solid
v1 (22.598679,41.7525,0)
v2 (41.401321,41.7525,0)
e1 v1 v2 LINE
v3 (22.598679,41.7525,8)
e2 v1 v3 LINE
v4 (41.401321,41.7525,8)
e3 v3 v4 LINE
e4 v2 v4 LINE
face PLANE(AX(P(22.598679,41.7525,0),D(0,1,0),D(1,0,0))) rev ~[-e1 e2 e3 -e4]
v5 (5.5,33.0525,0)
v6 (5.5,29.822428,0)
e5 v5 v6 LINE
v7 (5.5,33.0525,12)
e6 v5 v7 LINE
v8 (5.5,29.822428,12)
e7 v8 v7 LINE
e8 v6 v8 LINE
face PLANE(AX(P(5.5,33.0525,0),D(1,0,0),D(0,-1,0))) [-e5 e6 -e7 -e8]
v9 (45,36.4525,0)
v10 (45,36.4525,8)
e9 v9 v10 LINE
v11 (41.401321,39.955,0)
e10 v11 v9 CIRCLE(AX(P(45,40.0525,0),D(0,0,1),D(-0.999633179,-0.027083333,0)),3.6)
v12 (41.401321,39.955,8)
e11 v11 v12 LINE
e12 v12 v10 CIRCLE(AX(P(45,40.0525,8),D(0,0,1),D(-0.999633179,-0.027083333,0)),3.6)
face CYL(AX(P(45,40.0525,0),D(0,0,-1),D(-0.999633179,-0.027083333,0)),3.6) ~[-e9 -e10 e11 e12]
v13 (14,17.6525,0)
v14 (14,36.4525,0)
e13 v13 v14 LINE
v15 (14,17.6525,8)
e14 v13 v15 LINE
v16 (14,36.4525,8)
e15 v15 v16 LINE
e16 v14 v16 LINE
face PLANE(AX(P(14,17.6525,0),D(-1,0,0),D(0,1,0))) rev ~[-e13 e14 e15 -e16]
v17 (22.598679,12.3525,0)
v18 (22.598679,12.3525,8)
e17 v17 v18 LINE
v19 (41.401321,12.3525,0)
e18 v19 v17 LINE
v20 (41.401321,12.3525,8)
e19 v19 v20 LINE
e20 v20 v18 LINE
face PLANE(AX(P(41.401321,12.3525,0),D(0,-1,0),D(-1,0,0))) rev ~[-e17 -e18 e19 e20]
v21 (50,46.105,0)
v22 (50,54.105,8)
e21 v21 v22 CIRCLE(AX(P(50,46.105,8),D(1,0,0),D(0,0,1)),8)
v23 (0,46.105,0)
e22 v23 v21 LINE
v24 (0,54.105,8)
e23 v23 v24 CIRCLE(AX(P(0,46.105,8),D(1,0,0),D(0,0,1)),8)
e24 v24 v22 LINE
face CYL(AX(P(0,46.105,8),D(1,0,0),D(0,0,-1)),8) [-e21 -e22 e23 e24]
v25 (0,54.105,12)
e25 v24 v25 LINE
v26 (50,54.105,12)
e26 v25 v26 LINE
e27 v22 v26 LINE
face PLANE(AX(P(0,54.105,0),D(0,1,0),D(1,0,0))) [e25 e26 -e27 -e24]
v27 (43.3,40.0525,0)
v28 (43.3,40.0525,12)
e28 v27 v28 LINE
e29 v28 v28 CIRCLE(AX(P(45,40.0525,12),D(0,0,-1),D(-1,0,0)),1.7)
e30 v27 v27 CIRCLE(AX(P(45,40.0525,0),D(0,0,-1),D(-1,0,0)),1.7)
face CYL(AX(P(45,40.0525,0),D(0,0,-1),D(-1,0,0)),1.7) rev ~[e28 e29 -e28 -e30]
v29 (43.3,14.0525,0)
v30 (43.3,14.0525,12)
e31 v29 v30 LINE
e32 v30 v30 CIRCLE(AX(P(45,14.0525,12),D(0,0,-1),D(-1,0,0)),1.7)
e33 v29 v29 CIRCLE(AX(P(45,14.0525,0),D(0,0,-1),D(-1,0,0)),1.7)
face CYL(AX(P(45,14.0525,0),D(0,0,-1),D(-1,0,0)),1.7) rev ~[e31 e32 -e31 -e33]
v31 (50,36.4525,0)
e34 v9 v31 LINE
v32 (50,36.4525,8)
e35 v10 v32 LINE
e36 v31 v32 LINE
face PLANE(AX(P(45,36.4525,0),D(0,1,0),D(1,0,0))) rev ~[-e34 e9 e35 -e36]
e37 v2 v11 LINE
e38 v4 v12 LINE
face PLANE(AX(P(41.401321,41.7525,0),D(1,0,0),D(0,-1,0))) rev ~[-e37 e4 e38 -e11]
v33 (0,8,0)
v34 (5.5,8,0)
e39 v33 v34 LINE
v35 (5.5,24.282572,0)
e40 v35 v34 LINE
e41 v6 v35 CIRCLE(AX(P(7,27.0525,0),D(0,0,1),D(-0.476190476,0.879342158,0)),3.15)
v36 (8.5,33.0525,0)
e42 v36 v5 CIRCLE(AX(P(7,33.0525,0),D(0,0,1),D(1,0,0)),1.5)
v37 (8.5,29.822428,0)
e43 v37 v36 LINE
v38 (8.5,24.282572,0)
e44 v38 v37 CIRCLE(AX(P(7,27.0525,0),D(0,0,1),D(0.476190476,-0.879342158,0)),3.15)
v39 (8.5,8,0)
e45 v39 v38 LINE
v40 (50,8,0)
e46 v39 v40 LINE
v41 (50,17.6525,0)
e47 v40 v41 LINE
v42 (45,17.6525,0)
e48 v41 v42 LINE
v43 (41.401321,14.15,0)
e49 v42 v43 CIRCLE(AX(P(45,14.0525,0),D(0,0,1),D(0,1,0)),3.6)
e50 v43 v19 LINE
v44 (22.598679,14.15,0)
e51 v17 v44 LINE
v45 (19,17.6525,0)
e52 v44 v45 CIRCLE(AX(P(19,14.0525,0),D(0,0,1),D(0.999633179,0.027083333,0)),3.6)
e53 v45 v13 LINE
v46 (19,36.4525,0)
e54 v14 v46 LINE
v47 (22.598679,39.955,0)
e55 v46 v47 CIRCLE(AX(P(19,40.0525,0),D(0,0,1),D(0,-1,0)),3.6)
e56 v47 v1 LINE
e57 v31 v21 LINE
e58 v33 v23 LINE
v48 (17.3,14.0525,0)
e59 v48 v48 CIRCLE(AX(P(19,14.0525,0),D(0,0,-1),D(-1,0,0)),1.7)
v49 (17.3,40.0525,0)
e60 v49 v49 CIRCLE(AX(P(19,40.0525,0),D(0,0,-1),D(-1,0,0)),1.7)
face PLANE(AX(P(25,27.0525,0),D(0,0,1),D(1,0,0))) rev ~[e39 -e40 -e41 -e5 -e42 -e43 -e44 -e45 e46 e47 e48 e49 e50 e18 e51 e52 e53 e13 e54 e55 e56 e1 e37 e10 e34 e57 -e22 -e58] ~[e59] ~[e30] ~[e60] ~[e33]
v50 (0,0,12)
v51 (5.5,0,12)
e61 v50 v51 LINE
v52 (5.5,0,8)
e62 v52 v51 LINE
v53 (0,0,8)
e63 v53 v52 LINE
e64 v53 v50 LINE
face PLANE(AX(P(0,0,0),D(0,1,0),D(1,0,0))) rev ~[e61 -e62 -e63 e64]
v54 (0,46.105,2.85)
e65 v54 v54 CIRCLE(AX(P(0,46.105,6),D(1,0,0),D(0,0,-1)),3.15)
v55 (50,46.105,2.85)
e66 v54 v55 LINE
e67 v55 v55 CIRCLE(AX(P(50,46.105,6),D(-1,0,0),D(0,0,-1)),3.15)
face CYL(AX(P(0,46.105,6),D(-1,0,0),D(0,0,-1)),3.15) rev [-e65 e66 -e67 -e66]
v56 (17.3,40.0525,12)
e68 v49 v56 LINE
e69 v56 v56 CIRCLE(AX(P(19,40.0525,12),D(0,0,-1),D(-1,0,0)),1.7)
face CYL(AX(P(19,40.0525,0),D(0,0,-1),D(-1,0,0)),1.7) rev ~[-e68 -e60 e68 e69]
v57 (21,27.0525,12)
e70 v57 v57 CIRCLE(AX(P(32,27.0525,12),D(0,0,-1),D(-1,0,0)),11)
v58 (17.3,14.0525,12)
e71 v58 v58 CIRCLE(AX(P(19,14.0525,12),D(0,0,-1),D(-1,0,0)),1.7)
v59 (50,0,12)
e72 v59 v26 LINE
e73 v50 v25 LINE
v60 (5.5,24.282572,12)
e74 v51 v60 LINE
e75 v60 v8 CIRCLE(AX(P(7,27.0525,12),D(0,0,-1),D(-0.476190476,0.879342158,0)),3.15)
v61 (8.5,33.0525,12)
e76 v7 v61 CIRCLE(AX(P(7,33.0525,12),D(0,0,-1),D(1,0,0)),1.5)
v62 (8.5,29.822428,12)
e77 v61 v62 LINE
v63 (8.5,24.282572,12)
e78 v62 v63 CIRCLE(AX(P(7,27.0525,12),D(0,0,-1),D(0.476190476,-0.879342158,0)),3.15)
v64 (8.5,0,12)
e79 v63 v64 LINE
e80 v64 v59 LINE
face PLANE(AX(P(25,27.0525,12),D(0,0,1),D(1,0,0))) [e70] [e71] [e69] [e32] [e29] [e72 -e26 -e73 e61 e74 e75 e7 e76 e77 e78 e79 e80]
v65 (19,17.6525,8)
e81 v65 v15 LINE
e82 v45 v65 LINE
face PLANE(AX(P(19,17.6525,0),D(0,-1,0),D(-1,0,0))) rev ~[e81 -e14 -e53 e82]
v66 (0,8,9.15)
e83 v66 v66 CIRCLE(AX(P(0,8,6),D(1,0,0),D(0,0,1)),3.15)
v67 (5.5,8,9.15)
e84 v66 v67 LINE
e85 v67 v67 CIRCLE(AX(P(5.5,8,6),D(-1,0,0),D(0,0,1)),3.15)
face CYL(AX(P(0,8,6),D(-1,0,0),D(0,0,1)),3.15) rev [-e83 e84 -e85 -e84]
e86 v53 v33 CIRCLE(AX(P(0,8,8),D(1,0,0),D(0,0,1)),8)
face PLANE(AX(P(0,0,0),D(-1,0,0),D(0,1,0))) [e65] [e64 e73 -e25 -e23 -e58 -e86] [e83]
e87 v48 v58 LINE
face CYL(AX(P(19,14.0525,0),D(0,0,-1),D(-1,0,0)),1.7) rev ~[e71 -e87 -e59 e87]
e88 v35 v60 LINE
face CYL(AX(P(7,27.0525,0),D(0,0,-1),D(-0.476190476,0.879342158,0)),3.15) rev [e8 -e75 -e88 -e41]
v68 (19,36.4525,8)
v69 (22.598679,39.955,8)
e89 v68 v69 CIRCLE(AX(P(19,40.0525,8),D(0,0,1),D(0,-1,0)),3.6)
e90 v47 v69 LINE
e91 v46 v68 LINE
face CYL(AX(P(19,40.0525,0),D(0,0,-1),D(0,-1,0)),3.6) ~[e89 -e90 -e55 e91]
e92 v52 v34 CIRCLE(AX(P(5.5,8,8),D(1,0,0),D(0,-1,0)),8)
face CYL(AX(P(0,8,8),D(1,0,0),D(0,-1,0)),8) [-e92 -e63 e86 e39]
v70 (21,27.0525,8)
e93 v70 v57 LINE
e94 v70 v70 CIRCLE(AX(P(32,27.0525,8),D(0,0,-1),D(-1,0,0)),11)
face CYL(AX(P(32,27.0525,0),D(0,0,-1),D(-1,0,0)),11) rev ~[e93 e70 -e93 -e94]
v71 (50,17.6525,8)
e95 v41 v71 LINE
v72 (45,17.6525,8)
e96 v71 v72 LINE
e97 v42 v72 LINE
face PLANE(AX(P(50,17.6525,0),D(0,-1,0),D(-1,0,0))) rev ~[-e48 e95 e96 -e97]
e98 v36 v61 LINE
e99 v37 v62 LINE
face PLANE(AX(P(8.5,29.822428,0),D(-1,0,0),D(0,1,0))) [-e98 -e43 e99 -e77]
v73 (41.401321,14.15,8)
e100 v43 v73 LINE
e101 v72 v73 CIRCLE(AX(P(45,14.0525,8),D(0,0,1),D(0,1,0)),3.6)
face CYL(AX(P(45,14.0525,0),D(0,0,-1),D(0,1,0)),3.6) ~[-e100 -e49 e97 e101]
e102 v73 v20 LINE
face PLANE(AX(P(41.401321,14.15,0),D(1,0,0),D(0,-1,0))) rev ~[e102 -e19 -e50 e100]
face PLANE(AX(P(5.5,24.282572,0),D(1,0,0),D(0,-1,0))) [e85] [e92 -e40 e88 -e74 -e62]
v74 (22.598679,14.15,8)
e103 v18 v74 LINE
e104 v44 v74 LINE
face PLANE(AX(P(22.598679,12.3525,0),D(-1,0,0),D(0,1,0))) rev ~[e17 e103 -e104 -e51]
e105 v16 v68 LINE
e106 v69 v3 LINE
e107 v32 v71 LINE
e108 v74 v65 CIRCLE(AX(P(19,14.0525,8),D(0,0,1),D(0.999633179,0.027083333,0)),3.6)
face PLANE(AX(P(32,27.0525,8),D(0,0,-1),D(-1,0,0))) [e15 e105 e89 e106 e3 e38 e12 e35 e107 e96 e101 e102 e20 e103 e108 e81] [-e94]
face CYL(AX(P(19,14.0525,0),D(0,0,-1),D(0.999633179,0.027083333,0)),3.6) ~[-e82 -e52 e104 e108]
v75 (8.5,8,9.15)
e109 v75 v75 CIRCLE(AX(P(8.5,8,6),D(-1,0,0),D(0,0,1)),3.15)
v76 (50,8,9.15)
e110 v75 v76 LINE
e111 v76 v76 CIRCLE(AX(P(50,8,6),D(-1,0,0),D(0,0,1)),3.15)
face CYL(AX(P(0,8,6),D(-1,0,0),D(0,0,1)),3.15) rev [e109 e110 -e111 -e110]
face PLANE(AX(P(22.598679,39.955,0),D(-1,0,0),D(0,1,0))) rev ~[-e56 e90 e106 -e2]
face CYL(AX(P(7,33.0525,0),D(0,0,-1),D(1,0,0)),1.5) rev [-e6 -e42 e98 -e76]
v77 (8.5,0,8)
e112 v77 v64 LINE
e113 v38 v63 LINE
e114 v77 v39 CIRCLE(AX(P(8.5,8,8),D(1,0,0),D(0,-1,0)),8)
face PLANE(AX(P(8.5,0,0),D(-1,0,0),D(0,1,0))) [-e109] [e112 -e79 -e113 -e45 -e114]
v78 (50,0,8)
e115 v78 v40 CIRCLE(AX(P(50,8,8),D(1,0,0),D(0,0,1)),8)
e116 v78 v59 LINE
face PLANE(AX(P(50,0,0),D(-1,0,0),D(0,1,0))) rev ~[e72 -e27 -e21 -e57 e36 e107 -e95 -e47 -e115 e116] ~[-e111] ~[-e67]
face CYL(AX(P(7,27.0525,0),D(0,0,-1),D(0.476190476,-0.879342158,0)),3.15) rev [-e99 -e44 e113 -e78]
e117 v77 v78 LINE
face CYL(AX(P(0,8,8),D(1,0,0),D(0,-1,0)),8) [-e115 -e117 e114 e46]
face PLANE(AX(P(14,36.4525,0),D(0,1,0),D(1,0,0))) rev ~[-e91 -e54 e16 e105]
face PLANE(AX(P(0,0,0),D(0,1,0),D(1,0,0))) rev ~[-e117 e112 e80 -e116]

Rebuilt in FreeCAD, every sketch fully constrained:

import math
import FreeCAD as App
import Part
import Sketcher

V = App.Vector
Q = App.Units.Quantity


def edges_at(feature, points):
    """Names of the edges that pass closest to the given points."""
    edges = feature.Shape.Edges
    near = lambda p: min(range(len(edges)), key=lambda i: edges[i].distToShape(Part.Vertex(*p))[0])
    return sorted({f"Edge{near(p) + 1}" for p in points})

doc = App.newDocument("Part")
body = doc.addObject("PartDesign::Body", "Body")

# Sketch on XY plane
sketch1 = body.newObject("Sketcher::SketchObject", "Sketch")
sketch1.AttachmentSupport = (doc.getObject("XY_Plane"), [""])
sketch1.MapMode = "FlatFace"
sketch1.addGeometry(Part.LineSegment(V(0, 54.105, 0), V(0, 0, 0)), False)
sketch1.addGeometry(Part.LineSegment(V(0, 0, 0), V(50, 0, 0)), False)
sketch1.addGeometry(Part.LineSegment(V(50, 0, 0), V(50, 54.105, 0)), False)
sketch1.addGeometry(Part.LineSegment(V(50, 54.105, 0), V(0, 54.105, 0)), False)
sketch1.addConstraint(Sketcher.Constraint("Coincident", 0, 2, 1, 1))
sketch1.addConstraint(Sketcher.Constraint("Coincident", 1, 2, 2, 1))
sketch1.addConstraint(Sketcher.Constraint("Coincident", 2, 2, 3, 1))
sketch1.addConstraint(Sketcher.Constraint("Coincident", 3, 2, 0, 1))
sketch1.addConstraint(Sketcher.Constraint("Vertical", 0))
sketch1.addConstraint(Sketcher.Constraint("Horizontal", 1))
sketch1.addConstraint(Sketcher.Constraint("Vertical", 2))
sketch1.addConstraint(Sketcher.Constraint("Horizontal", 3))
sketch1.addConstraint(Sketcher.Constraint("Coincident", 0, 2, -1, 1))
sketch1.addConstraint(Sketcher.Constraint("DistanceX", 1, 1, 1, 2, Q("50 mm")))
sketch1.addConstraint(Sketcher.Constraint("DistanceY", 0, 2, 0, 1, Q("54.105 mm")))
pad1 = body.newObject("PartDesign::Pad", "Pad")
pad1.Profile = sketch1
pad1.Length = 12

# Sketch on YZ plane
sketch2 = body.newObject("Sketcher::SketchObject", "Sketch001")
sketch2.AttachmentSupport = (doc.getObject("YZ_Plane"), [""])
sketch2.MapMode = "FlatFace"
sketch2.addGeometry(Part.Circle(V(46.105, 6, 0), V(0, 0, 1), 3.15), False)
sketch2.addGeometry(Part.Circle(V(8, 6, 0), V(0, 0, 1), 3.15), False)
sketch2.addConstraint(Sketcher.Constraint("Equal", 0, 1))
sketch2.addConstraint(Sketcher.Constraint("Horizontal", 0, 3, 1, 3))
sketch2.addConstraint(Sketcher.Constraint("Diameter", 0, Q("6.3 mm")))
sketch2.addConstraint(Sketcher.Constraint("DistanceY", -1, 1, 0, 3, Q("6 mm")))
sketch2.addConstraint(Sketcher.Constraint("DistanceX", -1, 1, 1, 3, Q("8 mm")))
sketch2.addConstraint(Sketcher.Constraint("DistanceX", -1, 1, 0, 3, Q("46.105 mm")))
pocket1 = body.newObject("PartDesign::Pocket", "Pocket")
pocket1.Profile = sketch2
pocket1.Type = "ThroughAll"
pocket1.Reversed = True
doc.recompute()

fillet = body.newObject("PartDesign::Fillet", "Fillet")
fillet.Base = (pocket1, edges_at(pocket1, [(25, 54.105, 0), (25, 0, 0)]))
fillet.Radius = 8

# Sketch on XY plane
sketch3 = body.newObject("Sketcher::SketchObject", "Sketch002")
sketch3.AttachmentSupport = (doc.getObject("XY_Plane"), [""])
sketch3.MapMode = "FlatFace"
sketch3.addGeometry(Part.Circle(V(32, 27.0525, 0), V(0, 0, 1), 11), False)
sketch3.addGeometry(Part.Circle(V(19, 40.0525, 0), V(0, 0, 1), 1.7), False)
sketch3.addGeometry(Part.Circle(V(19, 14.0525, 0), V(0, 0, 1), 1.7), False)
sketch3.addGeometry(Part.Circle(V(45, 14.0525, 0), V(0, 0, 1), 1.7), False)
sketch3.addGeometry(Part.Circle(V(45, 40.0525, 0), V(0, 0, 1), 1.7), False)
sketch3.addGeometry(Part.LineSegment(V(8.5, 24.282572, 0), V(8.5, 0, 0)), False)
sketch3.addGeometry(Part.LineSegment(V(8.5, 0, 0), V(5.5, 0, 0)), False)
sketch3.addGeometry(Part.LineSegment(V(5.5, 0, 0), V(5.5, 24.282572, 0)), False)
sketch3.addGeometry(Part.ArcOfCircle(Part.Circle(V(7, 27.0525, 0), V(0, 0, 1), 3.15), math.radians(118.43689), math.radians(241.56311)), False)
sketch3.addGeometry(Part.LineSegment(V(5.5, 29.822428, 0), V(5.5, 33.0525, 0)), False)
sketch3.addGeometry(Part.ArcOfCircle(Part.Circle(V(7, 33.0525, 0), V(0, 0, 1), 1.5), math.radians(0), math.radians(180)), False)
sketch3.addGeometry(Part.LineSegment(V(8.5, 33.0525, 0), V(8.5, 29.822428, 0)), False)
sketch3.addGeometry(Part.ArcOfCircle(Part.Circle(V(7, 27.0525, 0), V(0, 0, 1), 3.15), math.radians(-61.56311), math.radians(61.56311)), False)
sketch3.addConstraint(Sketcher.Constraint("Coincident", 5, 2, 6, 1))
sketch3.addConstraint(Sketcher.Constraint("Coincident", 6, 2, 7, 1))
sketch3.addConstraint(Sketcher.Constraint("Coincident", 7, 2, 8, 2))
sketch3.addConstraint(Sketcher.Constraint("Coincident", 8, 1, 9, 1))
sketch3.addConstraint(Sketcher.Constraint("Tangent", 9, 2, 10, 2))
sketch3.addConstraint(Sketcher.Constraint("Tangent", 10, 1, 11, 1))
sketch3.addConstraint(Sketcher.Constraint("Coincident", 11, 2, 12, 2))
sketch3.addConstraint(Sketcher.Constraint("Coincident", 12, 1, 5, 1))
sketch3.addConstraint(Sketcher.Constraint("Vertical", 5))
sketch3.addConstraint(Sketcher.Constraint("Horizontal", 6))
sketch3.addConstraint(Sketcher.Constraint("Vertical", 7))
sketch3.addConstraint(Sketcher.Constraint("Vertical", 9))
sketch3.addConstraint(Sketcher.Constraint("Vertical", 11))
sketch3.addConstraint(Sketcher.Constraint("Coincident", 12, 3, 8, 3))
sketch3.addConstraint(Sketcher.Constraint("Equal", 1, 2))
sketch3.addConstraint(Sketcher.Constraint("Equal", 2, 3))
sketch3.addConstraint(Sketcher.Constraint("Equal", 3, 4))
sketch3.addConstraint(Sketcher.Constraint("Equal", 8, 12))
sketch3.addConstraint(Sketcher.Constraint("PointOnObject", 5, 2, -1))
sketch3.addConstraint(Sketcher.Constraint("Horizontal", 2, 3, 3, 3))
sketch3.addConstraint(Sketcher.Constraint("Horizontal", 1, 3, 4, 3))
sketch3.addConstraint(Sketcher.Constraint("Horizontal", 0, 3, 8, 3))
sketch3.addConstraint(Sketcher.Constraint("Horizontal", 8, 1, 11, 2))
sketch3.addConstraint(Sketcher.Constraint("Horizontal", 7, 2, 12, 1))
sketch3.addConstraint(Sketcher.Constraint("Vertical", 1, 3, 2, 3))
sketch3.addConstraint(Sketcher.Constraint("Vertical", 3, 3, 4, 3))
sketch3.addConstraint(Sketcher.Constraint("Vertical", 7, 2, 8, 1))
sketch3.addConstraint(Sketcher.Constraint("Diameter", 0, Q("22 mm")))
sketch3.addConstraint(Sketcher.Constraint("Diameter", 1, Q("3.4 mm")))
sketch3.addConstraint(Sketcher.Constraint("Radius", 10, Q("1.5 mm")))
sketch3.addConstraint(Sketcher.Constraint("Radius", 8, Q("3.15 mm")))
sketch3.addConstraint(Sketcher.Constraint("DistanceX", -1, 1, 0, 3, Q("32 mm")))
sketch3.addConstraint(Sketcher.Constraint("DistanceX", -1, 1, 1, 3, Q("19 mm")))
sketch3.addConstraint(Sketcher.Constraint("DistanceX", -1, 1, 3, 3, Q("45 mm")))
sketch3.addConstraint(Sketcher.Constraint("DistanceX", -1, 1, 8, 3, Q("7 mm")))
sketch3.addConstraint(Sketcher.Constraint("DistanceY", 0, 3, 1, 3, Q("13 mm")))
sketch3.addConstraint(Sketcher.Constraint("DistanceY", 2, 3, 0, 3, Q("13 mm")))
sketch3.addConstraint(Sketcher.Constraint("DistanceY", 8, 3, 10, 3, Q("6 mm")))
sketch3.addConstraint(Sketcher.Constraint("DistanceY", -1, 1, 0, 3, Q("27.0525 mm")))
pocket2 = body.newObject("PartDesign::Pocket", "Pocket001")
pocket2.Profile = sketch3
pocket2.Type = "ThroughAll"
pocket2.Reversed = True

# Sketch on XY plane
sketch4 = body.newObject("Sketcher::SketchObject", "Sketch003")
sketch4.AttachmentSupport = (doc.getObject("XY_Plane"), [""])
sketch4.MapMode = "FlatFace"
sketch4.addGeometry(Part.LineSegment(V(19, 17.6525, 0), V(14, 17.6525, 0)), False)
sketch4.addGeometry(Part.LineSegment(V(14, 17.6525, 0), V(14, 36.4525, 0)), False)
sketch4.addGeometry(Part.LineSegment(V(14, 36.4525, 0), V(19, 36.4525, 0)), False)
sketch4.addGeometry(Part.ArcOfCircle(Part.Circle(V(19, 40.0525, 0), V(0, 0, 1), 3.6), math.radians(-90), math.radians(-1.55195)), False)
sketch4.addGeometry(Part.LineSegment(V(22.598679, 39.955, 0), V(22.598679, 41.7525, 0)), False)
sketch4.addGeometry(Part.LineSegment(V(22.598679, 41.7525, 0), V(41.401321, 41.7525, 0)), False)
sketch4.addGeometry(Part.LineSegment(V(41.401321, 41.7525, 0), V(41.401321, 39.955, 0)), False)
sketch4.addGeometry(Part.ArcOfCircle(Part.Circle(V(45, 40.0525, 0), V(0, 0, 1), 3.6), math.radians(-178.44805), math.radians(-90)), False)
sketch4.addGeometry(Part.LineSegment(V(45, 36.4525, 0), V(50, 36.4525, 0)), False)
sketch4.addGeometry(Part.LineSegment(V(50, 36.4525, 0), V(50, 17.6525, 0)), False)
sketch4.addGeometry(Part.LineSegment(V(50, 17.6525, 0), V(45, 17.6525, 0)), False)
sketch4.addGeometry(Part.ArcOfCircle(Part.Circle(V(45, 14.0525, 0), V(0, 0, 1), 3.6), math.radians(90), math.radians(178.44805)), False)
sketch4.addGeometry(Part.LineSegment(V(41.401321, 14.15, 0), V(41.401321, 12.3525, 0)), False)
sketch4.addGeometry(Part.LineSegment(V(41.401321, 12.3525, 0), V(22.598679, 12.3525, 0)), False)
sketch4.addGeometry(Part.LineSegment(V(22.598679, 12.3525, 0), V(22.598679, 14.15, 0)), False)
sketch4.addGeometry(Part.ArcOfCircle(Part.Circle(V(19, 14.0525, 0), V(0, 0, 1), 3.6), math.radians(1.55195), math.radians(90)), False)
sketch4.addConstraint(Sketcher.Constraint("Coincident", 0, 2, 1, 1))
sketch4.addConstraint(Sketcher.Constraint("Coincident", 1, 2, 2, 1))
sketch4.addConstraint(Sketcher.Constraint("Tangent", 2, 2, 3, 1))
sketch4.addConstraint(Sketcher.Constraint("Coincident", 3, 2, 4, 1))
sketch4.addConstraint(Sketcher.Constraint("Coincident", 4, 2, 5, 1))
sketch4.addConstraint(Sketcher.Constraint("Coincident", 5, 2, 6, 1))
sketch4.addConstraint(Sketcher.Constraint("Coincident", 6, 2, 7, 1))
sketch4.addConstraint(Sketcher.Constraint("Tangent", 7, 2, 8, 1))
sketch4.addConstraint(Sketcher.Constraint("Coincident", 8, 2, 9, 1))
sketch4.addConstraint(Sketcher.Constraint("Coincident", 9, 2, 10, 1))
sketch4.addConstraint(Sketcher.Constraint("Tangent", 10, 2, 11, 1))
sketch4.addConstraint(Sketcher.Constraint("Coincident", 11, 2, 12, 1))
sketch4.addConstraint(Sketcher.Constraint("Coincident", 12, 2, 13, 1))
sketch4.addConstraint(Sketcher.Constraint("Coincident", 13, 2, 14, 1))
sketch4.addConstraint(Sketcher.Constraint("Coincident", 14, 2, 15, 1))
sketch4.addConstraint(Sketcher.Constraint("Tangent", 15, 2, 0, 1))
sketch4.addConstraint(Sketcher.Constraint("Horizontal", 0))
sketch4.addConstraint(Sketcher.Constraint("Vertical", 1))
sketch4.addConstraint(Sketcher.Constraint("Horizontal", 2))
sketch4.addConstraint(Sketcher.Constraint("Vertical", 4))
sketch4.addConstraint(Sketcher.Constraint("Horizontal", 5))
sketch4.addConstraint(Sketcher.Constraint("Vertical", 6))
sketch4.addConstraint(Sketcher.Constraint("Horizontal", 8))
sketch4.addConstraint(Sketcher.Constraint("Vertical", 9))
sketch4.addConstraint(Sketcher.Constraint("Horizontal", 10))
sketch4.addConstraint(Sketcher.Constraint("Vertical", 12))
sketch4.addConstraint(Sketcher.Constraint("Horizontal", 13))
sketch4.addConstraint(Sketcher.Constraint("Vertical", 14))
sketch4.addConstraint(Sketcher.Constraint("Equal", 3, 7))
sketch4.addConstraint(Sketcher.Constraint("Equal", 7, 11))
sketch4.addConstraint(Sketcher.Constraint("Equal", 11, 15))
sketch4.addConstraint(Sketcher.Constraint("Horizontal", 3, 3, 7, 3))
sketch4.addConstraint(Sketcher.Constraint("Horizontal", 11, 3, 15, 3))
sketch4.addConstraint(Sketcher.Constraint("Horizontal", 3, 2, 6, 2))
sketch4.addConstraint(Sketcher.Constraint("Horizontal", 11, 2, 14, 2))
sketch4.addConstraint(Sketcher.Constraint("Vertical", 7, 3, 11, 3))
sketch4.addConstraint(Sketcher.Constraint("Vertical", 3, 3, 15, 3))
sketch4.addConstraint(Sketcher.Constraint("Vertical", 6, 2, 11, 2))
sketch4.addConstraint(Sketcher.Constraint("Equal", 2, 8))
sketch4.addConstraint(Sketcher.Constraint("Equal", 6, 12))
sketch4.addConstraint(Sketcher.Constraint("Radius", 3, Q("3.6 mm")))
sketch4.addConstraint(Sketcher.Constraint("DistanceX", 0, 2, 0, 1, Q("5 mm")))
sketch4.addConstraint(Sketcher.Constraint("DistanceY", 1, 1, 1, 2, Q("18.8 mm")))
sketch4.addConstraint(Sketcher.Constraint("DistanceX", -1, 1, 3, 3, Q("19 mm")))
sketch4.addConstraint(Sketcher.Constraint("DistanceX", -1, 1, 7, 3, Q("45 mm")))
sketch4.addConstraint(Sketcher.Constraint("DistanceY", 3, 3, 4, 2, Q("1.7 mm")))
sketch4.addConstraint(Sketcher.Constraint("DistanceY", -1, 1, 11, 2, Q("14.15 mm")))
sketch4.addConstraint(Sketcher.Constraint("DistanceY", 4, 1, 4, 2, Q("1.7975 mm")))
pocket3 = body.newObject("PartDesign::Pocket", "Pocket002")
pocket3.Profile = sketch4
pocket3.Length = 8
pocket3.Reversed = True

doc.recompute()
